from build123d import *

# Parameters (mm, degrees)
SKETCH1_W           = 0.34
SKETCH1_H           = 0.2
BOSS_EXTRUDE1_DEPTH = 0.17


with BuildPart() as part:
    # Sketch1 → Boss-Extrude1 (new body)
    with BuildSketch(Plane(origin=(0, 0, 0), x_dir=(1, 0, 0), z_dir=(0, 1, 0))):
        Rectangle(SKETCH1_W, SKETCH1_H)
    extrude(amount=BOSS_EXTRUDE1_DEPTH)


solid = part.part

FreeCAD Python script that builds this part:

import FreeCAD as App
import Part
import Sketcher
from FreeCAD import Vector


def add_polygon(sketch, points):
    """Adds a closed chain of lines whose ends are joined by coincident constraints."""
    first, n = sketch.GeometryCount, len(points)
    for a, b in zip(points, points[1:] + points[:1]):
        sketch.addGeometry(Part.LineSegment(App.Vector(*a, 0), App.Vector(*b, 0)), False)
    for i in range(n):
        sketch.addConstraint(Sketcher.Constraint("Coincident", first + i, 2, first + (i + 1) % n, 1))

doc = App.newDocument("Part")
body = doc.addObject("PartDesign::Body", "Body")

sketch1 = body.newObject("Sketcher::SketchObject", "Sketch")
sketch1.AttachmentSupport = (doc.getObject("XZ_Plane"), [""])
sketch1.MapMode = "FlatFace"
add_polygon(sketch1, [(-0.17, -0.1), (-0.17, 0.1), (0.17, 0.1), (0.17, -0.1)])
sketch1.addConstraint([
    Sketcher.Constraint("Vertical", 0),
    Sketcher.Constraint("Horizontal", 1),
    Sketcher.Constraint("Vertical", 2),
    Sketcher.Constraint("Horizontal", 3),
    Sketcher.Constraint("Symmetric", 0, 2, 2, 2, -1, 1),
    Sketcher.Constraint("DistanceY", 0, 1, 0, 2, 0.2),
    Sketcher.Constraint("DistanceX", 1, 1, 1, 2, 0.34),
])
pad1 = body.newObject("PartDesign::Pad", "Pad")
pad1.Profile = sketch1
pad1.Length = 0.17
pad1.Reversed = True

doc.recompute()
